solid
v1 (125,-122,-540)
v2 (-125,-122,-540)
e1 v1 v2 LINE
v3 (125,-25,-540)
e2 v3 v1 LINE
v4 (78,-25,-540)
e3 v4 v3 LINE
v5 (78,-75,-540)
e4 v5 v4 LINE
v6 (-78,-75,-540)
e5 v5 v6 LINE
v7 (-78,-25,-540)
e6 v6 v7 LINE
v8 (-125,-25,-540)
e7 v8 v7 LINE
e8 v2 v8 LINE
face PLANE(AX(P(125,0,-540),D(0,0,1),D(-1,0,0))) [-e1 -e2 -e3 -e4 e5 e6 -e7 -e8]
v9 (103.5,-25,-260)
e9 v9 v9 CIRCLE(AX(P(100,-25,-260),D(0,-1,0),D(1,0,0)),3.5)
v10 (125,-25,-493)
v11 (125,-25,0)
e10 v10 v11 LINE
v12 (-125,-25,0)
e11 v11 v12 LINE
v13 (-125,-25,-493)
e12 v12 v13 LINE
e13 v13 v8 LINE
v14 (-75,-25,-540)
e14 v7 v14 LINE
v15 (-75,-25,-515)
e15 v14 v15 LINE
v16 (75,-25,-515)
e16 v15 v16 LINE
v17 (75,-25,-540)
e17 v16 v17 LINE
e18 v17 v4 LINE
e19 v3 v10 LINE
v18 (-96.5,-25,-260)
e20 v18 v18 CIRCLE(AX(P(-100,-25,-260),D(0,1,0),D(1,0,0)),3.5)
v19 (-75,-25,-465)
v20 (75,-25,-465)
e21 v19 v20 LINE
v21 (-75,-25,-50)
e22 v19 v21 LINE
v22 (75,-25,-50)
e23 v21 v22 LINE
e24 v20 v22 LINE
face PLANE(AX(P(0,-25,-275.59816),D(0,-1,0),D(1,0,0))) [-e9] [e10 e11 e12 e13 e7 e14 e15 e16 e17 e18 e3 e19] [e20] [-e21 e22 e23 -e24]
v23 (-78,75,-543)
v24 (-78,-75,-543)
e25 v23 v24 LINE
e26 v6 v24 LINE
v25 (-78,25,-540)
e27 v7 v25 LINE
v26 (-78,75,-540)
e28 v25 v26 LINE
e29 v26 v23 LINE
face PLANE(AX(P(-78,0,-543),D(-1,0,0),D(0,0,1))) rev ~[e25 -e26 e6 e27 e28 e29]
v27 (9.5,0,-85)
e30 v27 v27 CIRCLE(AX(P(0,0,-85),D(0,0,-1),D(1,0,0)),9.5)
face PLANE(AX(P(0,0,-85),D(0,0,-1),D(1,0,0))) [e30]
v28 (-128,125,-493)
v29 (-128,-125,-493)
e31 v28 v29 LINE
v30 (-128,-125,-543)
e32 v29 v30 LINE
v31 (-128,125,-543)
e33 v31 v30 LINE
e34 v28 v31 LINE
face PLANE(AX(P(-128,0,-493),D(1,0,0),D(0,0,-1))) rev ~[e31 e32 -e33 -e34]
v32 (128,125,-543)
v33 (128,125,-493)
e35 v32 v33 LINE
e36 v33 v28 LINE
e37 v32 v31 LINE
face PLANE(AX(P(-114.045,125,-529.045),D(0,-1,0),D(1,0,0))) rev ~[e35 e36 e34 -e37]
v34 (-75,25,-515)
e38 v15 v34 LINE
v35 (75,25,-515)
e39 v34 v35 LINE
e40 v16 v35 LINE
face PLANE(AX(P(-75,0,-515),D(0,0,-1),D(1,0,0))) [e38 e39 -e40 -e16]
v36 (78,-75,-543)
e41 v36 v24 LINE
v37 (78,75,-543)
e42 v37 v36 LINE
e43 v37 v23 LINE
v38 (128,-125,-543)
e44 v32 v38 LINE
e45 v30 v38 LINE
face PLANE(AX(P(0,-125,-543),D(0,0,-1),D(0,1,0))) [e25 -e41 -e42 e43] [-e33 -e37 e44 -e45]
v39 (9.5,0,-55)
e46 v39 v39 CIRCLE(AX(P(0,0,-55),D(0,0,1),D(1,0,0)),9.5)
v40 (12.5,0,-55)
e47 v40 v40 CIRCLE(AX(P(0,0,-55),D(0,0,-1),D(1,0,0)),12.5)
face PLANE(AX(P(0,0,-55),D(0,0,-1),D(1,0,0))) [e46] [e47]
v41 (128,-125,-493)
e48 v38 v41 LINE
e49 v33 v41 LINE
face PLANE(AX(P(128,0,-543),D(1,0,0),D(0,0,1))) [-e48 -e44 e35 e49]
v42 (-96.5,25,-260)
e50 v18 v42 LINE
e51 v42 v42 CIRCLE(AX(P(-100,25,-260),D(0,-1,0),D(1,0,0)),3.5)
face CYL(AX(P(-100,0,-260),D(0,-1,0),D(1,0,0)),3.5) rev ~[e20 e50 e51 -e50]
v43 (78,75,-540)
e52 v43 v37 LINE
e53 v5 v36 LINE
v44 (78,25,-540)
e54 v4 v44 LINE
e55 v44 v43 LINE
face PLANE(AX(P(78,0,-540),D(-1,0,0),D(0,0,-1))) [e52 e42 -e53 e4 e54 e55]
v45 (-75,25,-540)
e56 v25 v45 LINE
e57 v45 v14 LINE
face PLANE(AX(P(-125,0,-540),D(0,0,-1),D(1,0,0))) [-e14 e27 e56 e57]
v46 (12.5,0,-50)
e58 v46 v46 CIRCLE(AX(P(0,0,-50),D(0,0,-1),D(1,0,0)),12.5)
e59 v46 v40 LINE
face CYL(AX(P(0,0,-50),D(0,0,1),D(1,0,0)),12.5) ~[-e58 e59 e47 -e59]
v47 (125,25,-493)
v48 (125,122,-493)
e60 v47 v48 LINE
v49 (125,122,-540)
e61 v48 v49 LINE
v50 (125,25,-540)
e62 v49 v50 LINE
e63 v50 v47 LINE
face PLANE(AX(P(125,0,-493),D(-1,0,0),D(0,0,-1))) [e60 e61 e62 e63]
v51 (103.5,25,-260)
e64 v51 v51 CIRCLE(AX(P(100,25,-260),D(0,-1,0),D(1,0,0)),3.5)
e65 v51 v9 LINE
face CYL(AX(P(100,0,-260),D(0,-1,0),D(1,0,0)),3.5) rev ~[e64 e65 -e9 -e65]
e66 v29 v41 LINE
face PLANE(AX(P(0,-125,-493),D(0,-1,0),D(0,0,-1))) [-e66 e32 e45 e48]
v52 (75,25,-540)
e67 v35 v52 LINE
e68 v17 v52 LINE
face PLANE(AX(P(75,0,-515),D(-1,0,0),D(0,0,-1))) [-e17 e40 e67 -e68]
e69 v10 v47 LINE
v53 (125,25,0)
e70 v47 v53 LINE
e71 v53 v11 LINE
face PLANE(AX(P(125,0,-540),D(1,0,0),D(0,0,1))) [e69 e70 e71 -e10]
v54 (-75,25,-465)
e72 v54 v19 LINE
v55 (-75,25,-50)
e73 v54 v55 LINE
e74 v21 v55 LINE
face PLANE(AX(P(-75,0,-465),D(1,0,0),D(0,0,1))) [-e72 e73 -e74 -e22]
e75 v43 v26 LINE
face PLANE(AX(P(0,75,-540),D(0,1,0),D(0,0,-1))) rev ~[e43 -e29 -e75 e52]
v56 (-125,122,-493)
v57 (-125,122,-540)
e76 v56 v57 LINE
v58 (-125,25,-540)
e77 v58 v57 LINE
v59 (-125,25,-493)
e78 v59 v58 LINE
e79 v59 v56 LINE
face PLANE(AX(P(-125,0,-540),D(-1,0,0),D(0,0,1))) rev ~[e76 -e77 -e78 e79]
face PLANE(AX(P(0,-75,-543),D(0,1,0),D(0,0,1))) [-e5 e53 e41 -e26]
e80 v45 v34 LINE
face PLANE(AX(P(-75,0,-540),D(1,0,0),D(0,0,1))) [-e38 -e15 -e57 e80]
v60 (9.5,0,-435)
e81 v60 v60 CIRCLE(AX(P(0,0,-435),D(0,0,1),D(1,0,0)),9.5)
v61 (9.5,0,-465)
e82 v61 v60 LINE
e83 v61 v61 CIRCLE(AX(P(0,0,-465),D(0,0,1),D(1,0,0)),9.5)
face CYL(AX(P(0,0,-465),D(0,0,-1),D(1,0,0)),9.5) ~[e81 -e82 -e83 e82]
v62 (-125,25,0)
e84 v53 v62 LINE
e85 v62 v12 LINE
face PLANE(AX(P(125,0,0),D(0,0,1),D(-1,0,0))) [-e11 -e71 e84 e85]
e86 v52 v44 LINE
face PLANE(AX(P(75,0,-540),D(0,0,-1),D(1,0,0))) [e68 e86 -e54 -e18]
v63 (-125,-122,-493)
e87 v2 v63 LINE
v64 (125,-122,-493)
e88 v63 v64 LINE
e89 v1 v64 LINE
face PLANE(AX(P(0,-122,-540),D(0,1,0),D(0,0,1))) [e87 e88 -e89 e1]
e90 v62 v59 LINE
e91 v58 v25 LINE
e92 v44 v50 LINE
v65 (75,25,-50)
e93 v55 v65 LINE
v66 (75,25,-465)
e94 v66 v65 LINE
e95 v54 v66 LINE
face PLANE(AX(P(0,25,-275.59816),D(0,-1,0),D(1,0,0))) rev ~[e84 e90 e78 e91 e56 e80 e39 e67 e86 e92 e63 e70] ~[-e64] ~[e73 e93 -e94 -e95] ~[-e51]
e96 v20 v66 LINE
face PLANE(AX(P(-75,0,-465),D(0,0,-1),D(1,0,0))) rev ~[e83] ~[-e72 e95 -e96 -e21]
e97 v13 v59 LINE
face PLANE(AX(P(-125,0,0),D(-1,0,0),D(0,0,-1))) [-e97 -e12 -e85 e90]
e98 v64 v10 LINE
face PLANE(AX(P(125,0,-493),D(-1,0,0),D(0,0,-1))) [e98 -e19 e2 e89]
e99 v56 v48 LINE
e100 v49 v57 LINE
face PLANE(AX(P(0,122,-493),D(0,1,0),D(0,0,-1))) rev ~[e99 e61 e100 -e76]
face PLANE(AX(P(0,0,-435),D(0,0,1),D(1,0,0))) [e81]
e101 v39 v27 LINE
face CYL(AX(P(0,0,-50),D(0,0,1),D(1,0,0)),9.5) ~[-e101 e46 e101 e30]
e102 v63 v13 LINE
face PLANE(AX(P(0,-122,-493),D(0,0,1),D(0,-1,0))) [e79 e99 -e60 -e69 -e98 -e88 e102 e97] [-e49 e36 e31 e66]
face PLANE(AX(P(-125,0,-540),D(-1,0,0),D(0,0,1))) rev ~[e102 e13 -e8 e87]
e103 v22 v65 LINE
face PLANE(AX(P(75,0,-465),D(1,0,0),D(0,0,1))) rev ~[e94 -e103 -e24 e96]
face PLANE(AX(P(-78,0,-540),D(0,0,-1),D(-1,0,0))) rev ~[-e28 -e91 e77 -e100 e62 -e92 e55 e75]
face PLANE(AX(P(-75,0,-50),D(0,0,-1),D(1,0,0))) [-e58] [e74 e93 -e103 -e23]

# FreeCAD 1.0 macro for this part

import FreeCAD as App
import Part
import Sketcher

V = App.Vector

doc = App.newDocument("Part")
body = doc.addObject("PartDesign::Body", "Body")

# Sketch on XZ plane
sketch1 = body.newObject("Sketcher::SketchObject", "Sketch")
sketch1.AttachmentSupport = (doc.getObject("XZ_Plane"), [""])
sketch1.MapMode = "FlatFace"
sketch1.addGeometry([
    Part.LineSegment(V(125, -540, 0), V(125, 0, 0)),  # 0
    Part.LineSegment(V(125, 0, 0), V(-125, 0, 0)),  # 1
    Part.LineSegment(V(-125, 0, 0), V(-125, -540, 0)),  # 2
    Part.LineSegment(V(-125, -540, 0), V(-75, -540, 0)),  # 3
    Part.LineSegment(V(-75, -540, 0), V(-75, -515, 0)),  # 4
    Part.LineSegment(V(-75, -515, 0), V(75, -515, 0)),  # 5
    Part.LineSegment(V(75, -515, 0), V(75, -540, 0)),  # 6
    Part.LineSegment(V(75, -540, 0), V(125, -540, 0)),  # 7
    Part.LineSegment(V(75, -465, 0), V(-75, -465, 0)),  # 8
    Part.LineSegment(V(-75, -465, 0), V(-75, -50, 0)),  # 9
    Part.LineSegment(V(-75, -50, 0), V(75, -50, 0)),  # 10
    Part.LineSegment(V(75, -50, 0), V(75, -465, 0)),  # 11
], False)
sketch1.addConstraint([
    Sketcher.Constraint("Coincident", 0, 2, 1, 1),
    Sketcher.Constraint("Coincident", 1, 2, 2, 1),
    Sketcher.Constraint("Coincident", 2, 2, 3, 1),
    Sketcher.Constraint("Coincident", 3, 2, 4, 1),
    Sketcher.Constraint("Coincident", 4, 2, 5, 1),
    Sketcher.Constraint("Coincident", 5, 2, 6, 1),
    Sketcher.Constraint("Coincident", 6, 2, 7, 1),
    Sketcher.Constraint("Coincident", 7, 2, 0, 1),
    Sketcher.Constraint("Coincident", 8, 2, 9, 1),
    Sketcher.Constraint("Coincident", 9, 2, 10, 1),
    Sketcher.Constraint("Coincident", 10, 2, 11, 1),
    Sketcher.Constraint("Coincident", 11, 2, 8, 1),
    Sketcher.Constraint("Vertical", 0),
    Sketcher.Constraint("Horizontal", 1),
    Sketcher.Constraint("Vertical", 2),
    Sketcher.Constraint("Horizontal", 3),
    Sketcher.Constraint("Vertical", 4),
    Sketcher.Constraint("Horizontal", 5),
    Sketcher.Constraint("Vertical", 6),
    Sketcher.Constraint("Horizontal", 7),
    Sketcher.Constraint("Horizontal", 8),
    Sketcher.Constraint("Vertical", 9),
    Sketcher.Constraint("Horizontal", 10),
    Sketcher.Constraint("Vertical", 11),
    Sketcher.Constraint("Symmetric", 0, 2, 1, 2, -1, 1),
    Sketcher.Constraint("Symmetric", 3, 2, 6, 2, -2),
    Sketcher.Constraint("Vertical", 4, 2, 8, 2),
    Sketcher.Constraint("Vertical", 6, 2, 10, 2),
    Sketcher.Constraint("DistanceX", 1, 2, 1, 1, 250.0),
    Sketcher.Constraint("DistanceX", 3, 1, 3, 2, 50.0),
    Sketcher.Constraint("DistanceY", 0, 1, 0, 2, 540.0),
    Sketcher.Constraint("DistanceY", 4, 1, 4, 2, 25.0),
    Sketcher.Constraint("DistanceY", 9, 1, 9, 2, 415.0),
    Sketcher.Constraint("DistanceY", 8, 2, -1, 1, 465.0),
])
pad1 = body.newObject("PartDesign::Pad", "Pad")
pad1.Profile = sketch1
pad1.Length = 50
pad1.Midplane = True

# Sketch on XZ plane
sketch2 = body.newObject("Sketcher::SketchObject", "Sketch001")
sketch2.AttachmentSupport = (doc.getObject("XZ_Plane"), [""])
sketch2.MapMode = "FlatFace"
sketch2.addGeometry([
    Part.LineSegment(V(-125, -493, 0), V(-128, -493, 0)),  # 0
    Part.LineSegment(V(-128, -493, 0), V(-128, -543, 0)),  # 1
    Part.LineSegment(V(-128, -543, 0), V(-78, -543, 0)),  # 2
    Part.LineSegment(V(-78, -543, 0), V(-78, -540, 0)),  # 3
    Part.LineSegment(V(-78, -540, 0), V(-125, -540, 0)),  # 4
    Part.LineSegment(V(-125, -540, 0), V(-125, -493, 0)),  # 5
    Part.LineSegment(V(78, -540, 0), V(78, -543, 0)),  # 6
    Part.LineSegment(V(78, -543, 0), V(128, -543, 0)),  # 7
    Part.LineSegment(V(128, -543, 0), V(128, -493, 0)),  # 8
    Part.LineSegment(V(128, -493, 0), V(125, -493, 0)),  # 9
    Part.LineSegment(V(125, -493, 0), V(125, -540, 0)),  # 10
    Part.LineSegment(V(125, -540, 0), V(78, -540, 0)),  # 11
], False)
sketch2.addConstraint([
    Sketcher.Constraint("Coincident", 0, 2, 1, 1),
    Sketcher.Constraint("Coincident", 1, 2, 2, 1),
    Sketcher.Constraint("Coincident", 2, 2, 3, 1),
    Sketcher.Constraint("Coincident", 3, 2, 4, 1),
    Sketcher.Constraint("Coincident", 4, 2, 5, 1),
    Sketcher.Constraint("Coincident", 5, 2, 0, 1),
    Sketcher.Constraint("Coincident", 6, 2, 7, 1),
    Sketcher.Constraint("Coincident", 7, 2, 8, 1),
    Sketcher.Constraint("Coincident", 8, 2, 9, 1),
    Sketcher.Constraint("Coincident", 9, 2, 10, 1),
    Sketcher.Constraint("Coincident", 10, 2, 11, 1),
    Sketcher.Constraint("Coincident", 11, 2, 6, 1),
    Sketcher.Constraint("Horizontal", 0),
    Sketcher.Constraint("Vertical", 1),
    Sketcher.Constraint("Horizontal", 2),
    Sketcher.Constraint("Vertical", 3),
    Sketcher.Constraint("Horizontal", 4),
    Sketcher.Constraint("Vertical", 5),
    Sketcher.Constraint("Vertical", 6),
    Sketcher.Constraint("Horizontal", 7),
    Sketcher.Constraint("Vertical", 8),
    Sketcher.Constraint("Horizontal", 9),
    Sketcher.Constraint("Vertical", 10),
    Sketcher.Constraint("Horizontal", 11),
    Sketcher.Constraint("Symmetric", 2, 2, 6, 2, -2),
    Sketcher.Constraint("Symmetric", 0, 2, 8, 2, -2),
    Sketcher.Constraint("Symmetric", 4, 2, 10, 2, -2),
    Sketcher.Constraint("Equal", 7, 1),
    Sketcher.Constraint("Equal", 9, 3),
    Sketcher.Constraint("DistanceX", 0, 2, 0, 1, 3.0),
    Sketcher.Constraint("DistanceX", 2, 1, 2, 2, 50.0),
    Sketcher.Constraint("DistanceX", 0, 2, -1, 1, 128.0),
    Sketcher.Constraint("DistanceY", 0, 2, -1, 1, 493.0),
])
pad2 = body.newObject("PartDesign::Pad", "Pad001")
pad2.Profile = sketch2
pad2.Length = 250
pad2.Midplane = True

# Sketch on YZ plane
sketch3 = body.newObject("Sketcher::SketchObject", "Sketch002")
sketch3.AttachmentSupport = (doc.getObject("YZ_Plane"), [""])
sketch3.MapMode = "FlatFace"
sketch3.addGeometry([
    Part.LineSegment(V(125, -543, 0), V(125, -493, 0)),  # 0
    Part.LineSegment(V(125, -493, 0), V(122, -493, 0)),  # 1
    Part.LineSegment(V(122, -493, 0), V(122, -540, 0)),  # 2
    Part.LineSegment(V(122, -540, 0), V(75, -540, 0)),  # 3
    Part.LineSegment(V(75, -540, 0), V(75, -543, 0)),  # 4
    Part.LineSegment(V(75, -543, 0), V(125, -543, 0)),  # 5
    Part.LineSegment(V(-122, -540, 0), V(-122, -493, 0)),  # 6
    Part.LineSegment(V(-122, -493, 0), V(-125, -493, 0)),  # 7
    Part.LineSegment(V(-125, -493, 0), V(-125, -543, 0)),  # 8
    Part.LineSegment(V(-125, -543, 0), V(-75, -543, 0)),  # 9
    Part.LineSegment(V(-75, -543, 0), V(-75, -540, 0)),  # 10
    Part.LineSegment(V(-75, -540, 0), V(-122, -540, 0)),  # 11
], False)
sketch3.addConstraint([
    Sketcher.Constraint("Coincident", 0, 2, 1, 1),
    Sketcher.Constraint("Coincident", 1, 2, 2, 1),
    Sketcher.Constraint("Coincident", 2, 2, 3, 1),
    Sketcher.Constraint("Coincident", 3, 2, 4, 1),
    Sketcher.Constraint("Coincident", 4, 2, 5, 1),
    Sketcher.Constraint("Coincident", 5, 2, 0, 1),
    Sketcher.Constraint("Coincident", 6, 2, 7, 1),
    Sketcher.Constraint("Coincident", 7, 2, 8, 1),
    Sketcher.Constraint("Coincident", 8, 2, 9, 1),
    Sketcher.Constraint("Coincident", 9, 2, 10, 1),
    Sketcher.Constraint("Coincident", 10, 2, 11, 1),
    Sketcher.Constraint("Coincident", 11, 2, 6, 1),
    Sketcher.Constraint("Vertical", 0),
    Sketcher.Constraint("Horizontal", 1),
    Sketcher.Constraint("Vertical", 2),
    Sketcher.Constraint("Horizontal", 3),
    Sketcher.Constraint("Vertical", 4),
    Sketcher.Constraint("Horizontal", 5),
    Sketcher.Constraint("Vertical", 6),
    Sketcher.Constraint("Horizontal", 7),
    Sketcher.Constraint("Vertical", 8),
    Sketcher.Constraint("Horizontal", 9),
    Sketcher.Constraint("Vertical", 10),
    Sketcher.Constraint("Horizontal", 11),
    Sketcher.Constraint("Symmetric", 1, 2, 6, 2, -2),
    Sketcher.Constraint("Symmetric", 5, 2, 8, 2, -2),
    Sketcher.Constraint("Symmetric", 3, 2, 10, 2, -2),
    Sketcher.Constraint("Equal", 9, 0),
    Sketcher.Constraint("Equal", 11, 2),
    Sketcher.Constraint("DistanceX", 1, 2, 1, 1, 3.0),
    Sketcher.Constraint("DistanceX", 3, 2, 3, 1, 47.0),
    Sketcher.Constraint("DistanceX", -1, 1, 0, 2, 125.0),
    Sketcher.Constraint("DistanceY", 0, 2, -1, 1, 493.0),
])
pad3 = body.newObject("PartDesign::Pad", "Pad002")
pad3.Profile = sketch3
pad3.Length = 250
pad3.Midplane = True

# Sketch on XY plane
sketch4 = body.newObject("Sketcher::SketchObject", "Sketch003")
sketch4.AttachmentSupport = (doc.getObject("XY_Plane"), [""])
sketch4.MapMode = "FlatFace"
sketch4.AttachmentOffset = App.Placement(V(0, 0, -50), App.Rotation())
sketch4.addGeometry(Part.Circle(V(0, 0, 0), V(0, 0, 1), 10), False)
sketch4.addConstraint([
    Sketcher.Constraint("Coincident", 0, 3, -1, 1),
    Sketcher.Constraint("Diameter", 0, 19.0),
])
pad4 = body.newObject("PartDesign::Pad", "Pad003")
pad4.Profile = sketch4
pad4.Length = 35
pad4.Reversed = True

# Sketch on XY plane
sketch5 = body.newObject("Sketcher::SketchObject", "Sketch004")
sketch5.AttachmentSupport = (doc.getObject("XY_Plane"), [""])
sketch5.MapMode = "FlatFace"
sketch5.AttachmentOffset = App.Placement(V(0, 0, -50), App.Rotation())
sketch5.addGeometry(Part.Circle(V(0, 0, 0), V(0, 0, 1), 12), False)
sketch5.addConstraint([
    Sketcher.Constraint("Coincident", 0, 3, -1, 1),
    Sketcher.Constraint("Diameter", 0, 25.0),
])
pad5 = body.newObject("PartDesign::Pad", "Pad004")
pad5.Profile = sketch5
pad5.Length = 5
pad5.Reversed = True

# Sketch on XY plane
sketch6 = body.newObject("Sketcher::SketchObject", "Sketch005")
sketch6.AttachmentSupport = (doc.getObject("XY_Plane"), [""])
sketch6.MapMode = "FlatFace"
sketch6.AttachmentOffset = App.Placement(V(0, 0, -465), App.Rotation())
sketch6.addGeometry(Part.Circle(V(0, 0, 0), V(0, 0, 1), 10), False)
sketch6.addConstraint([
    Sketcher.Constraint("Coincident", 0, 3, -1, 1),
    Sketcher.Constraint("Diameter", 0, 19.0),
])
pad6 = body.newObject("PartDesign::Pad", "Pad005")
pad6.Profile = sketch6
pad6.Length = 30

# Sketch on XZ plane
sketch7 = body.newObject("Sketcher::SketchObject", "Sketch006")
sketch7.AttachmentSupport = (doc.getObject("XZ_Plane"), [""])
sketch7.MapMode = "FlatFace"
sketch7.addGeometry([
    Part.Circle(V(-100, -260, 0), V(0, 0, 1), 3.5),
    Part.Circle(V(100, -260, 0), V(0, 0, 1), 3.5),
], False)
sketch7.addConstraint([
    Sketcher.Constraint("Equal", 0, 1),
    Sketcher.Constraint("Symmetric", 0, 3, 1, 3, -2),
    Sketcher.Constraint("Diameter", 0, 7.0),
    Sketcher.Constraint("DistanceX", 0, 3, -1, 1, 100.0),
    Sketcher.Constraint("DistanceY", 0, 3, -1, 1, 260.0),
])
pocket1 = body.newObject("PartDesign::Pocket", "Pocket")
pocket1.Profile = sketch7
pocket1.Length = 60
pocket1.Midplane = True

doc.recompute()
